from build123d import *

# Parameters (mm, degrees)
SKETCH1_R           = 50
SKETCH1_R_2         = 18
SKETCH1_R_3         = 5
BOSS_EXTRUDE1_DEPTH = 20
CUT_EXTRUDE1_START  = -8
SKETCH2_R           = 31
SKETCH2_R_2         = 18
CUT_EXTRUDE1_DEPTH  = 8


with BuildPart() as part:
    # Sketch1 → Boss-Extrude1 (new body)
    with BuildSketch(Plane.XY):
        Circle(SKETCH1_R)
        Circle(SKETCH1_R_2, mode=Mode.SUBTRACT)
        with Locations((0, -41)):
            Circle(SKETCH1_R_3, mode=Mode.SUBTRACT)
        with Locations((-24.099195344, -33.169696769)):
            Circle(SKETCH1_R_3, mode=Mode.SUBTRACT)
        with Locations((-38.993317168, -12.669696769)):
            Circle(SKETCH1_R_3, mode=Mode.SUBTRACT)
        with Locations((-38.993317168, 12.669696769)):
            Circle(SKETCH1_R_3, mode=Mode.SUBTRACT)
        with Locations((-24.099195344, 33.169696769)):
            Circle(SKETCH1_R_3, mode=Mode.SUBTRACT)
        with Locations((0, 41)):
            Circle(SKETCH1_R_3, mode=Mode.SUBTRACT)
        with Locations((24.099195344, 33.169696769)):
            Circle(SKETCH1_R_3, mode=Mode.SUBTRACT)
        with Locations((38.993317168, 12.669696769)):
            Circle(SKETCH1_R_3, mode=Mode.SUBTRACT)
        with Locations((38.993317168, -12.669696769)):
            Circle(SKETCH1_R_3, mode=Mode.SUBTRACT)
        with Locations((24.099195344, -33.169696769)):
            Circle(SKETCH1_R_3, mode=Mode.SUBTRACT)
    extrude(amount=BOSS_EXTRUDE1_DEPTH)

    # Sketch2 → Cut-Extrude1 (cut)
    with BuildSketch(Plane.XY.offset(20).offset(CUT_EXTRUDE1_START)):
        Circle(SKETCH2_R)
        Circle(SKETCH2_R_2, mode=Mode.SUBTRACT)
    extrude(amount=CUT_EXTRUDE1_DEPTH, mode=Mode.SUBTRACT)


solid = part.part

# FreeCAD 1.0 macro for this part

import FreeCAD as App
import Part
import Sketcher
from FreeCAD import Vector

doc = App.newDocument("Part")
body = doc.addObject("PartDesign::Body", "Body")

# Sketch on XY plane
sketch1 = body.newObject("Sketcher::SketchObject", "Sketch")
sketch1.AttachmentSupport = (doc.getObject("XY_Plane"), [""])
sketch1.MapMode = "FlatFace"
sketch1.addGeometry(Part.Circle(Vector(0, 0, 0), Vector(0, 0, 1), 50), False)
sketch1.addGeometry(Part.Circle(Vector(-24.099195, -33.169697, 0), Vector(0, 0, 1), 5), False)
sketch1.addGeometry(Part.Circle(Vector(-38.993317, -12.669697, 0), Vector(0, 0, 1), 5), False)
sketch1.addGeometry(Part.Circle(Vector(0, -41, 0), Vector(0, 0, 1), 5), False)
sketch1.addGeometry(Part.Circle(Vector(24.099195, -33.169697, 0), Vector(0, 0, 1), 5), False)
sketch1.addGeometry(Part.Circle(Vector(38.993317, -12.669697, 0), Vector(0, 0, 1), 5), False)
sketch1.addGeometry(Part.Circle(Vector(-38.993317, 12.669697, 0), Vector(0, 0, 1), 5), False)
sketch1.addGeometry(Part.Circle(Vector(-24.099195, 33.169697, 0), Vector(0, 0, 1), 5), False)
sketch1.addGeometry(Part.Circle(Vector(0, 0, 0), Vector(0, 0, 1), 18), False)
sketch1.addGeometry(Part.Circle(Vector(38.993317, 12.669697, 0), Vector(0, 0, 1), 5), False)
sketch1.addGeometry(Part.Circle(Vector(0, 41, 0), Vector(0, 0, 1), 5), False)
sketch1.addGeometry(Part.Circle(Vector(24.099195, 33.169697, 0), Vector(0, 0, 1), 5), False)
sketch1.addConstraint(Sketcher.Constraint("Coincident", 0, 3, -1, 1))
sketch1.addConstraint(Sketcher.Constraint("Coincident", 8, 3, -1, 1))
sketch1.addConstraint(Sketcher.Constraint("Equal", 1, 2))
sketch1.addConstraint(Sketcher.Constraint("Equal", 2, 3))
sketch1.addConstraint(Sketcher.Constraint("Equal", 3, 4))
sketch1.addConstraint(Sketcher.Constraint("Equal", 4, 5))
sketch1.addConstraint(Sketcher.Constraint("Equal", 5, 6))
sketch1.addConstraint(Sketcher.Constraint("Equal", 6, 7))
sketch1.addConstraint(Sketcher.Constraint("Equal", 7, 9))
sketch1.addConstraint(Sketcher.Constraint("Equal", 9, 10))
sketch1.addConstraint(Sketcher.Constraint("Equal", 10, 11))
sketch1.addConstraint(Sketcher.Constraint("Symmetric", 5, 3, 6, 3, -1, 1))
sketch1.addConstraint(Sketcher.Constraint("Symmetric", 4, 3, 7, 3, -1, 1))
sketch1.addConstraint(Sketcher.Constraint("Symmetric", 2, 3, 9, 3, -1, 1))
sketch1.addConstraint(Sketcher.Constraint("Symmetric", 3, 3, 10, 3, -1, 1))
sketch1.addConstraint(Sketcher.Constraint("Symmetric", 1, 3, 11, 3, -1, 1))
sketch1.addConstraint(Sketcher.Constraint("Symmetric", 1, 3, 4, 3, -2))
sketch1.addConstraint(Sketcher.Constraint("Symmetric", 2, 3, 5, 3, -2))
sketch1.addConstraint(Sketcher.Constraint("PointOnObject", 3, 3, -2))
sketch1.addConstraint(Sketcher.Constraint("Diameter", 0, 100.0))
sketch1.addConstraint(Sketcher.Constraint("Diameter", 1, 10.0))
sketch1.addConstraint(Sketcher.Constraint("Diameter", 8, 36.0))
sketch1.addConstraint(Sketcher.Constraint("DistanceY", 3, 3, -1, 1, 41.0))
sketch1.addConstraint(Sketcher.Constraint("DistanceY", 1, 3, 2, 3, 20.5))
sketch1.addConstraint(Sketcher.Constraint("DistanceX", 2, 3, 1, 3, 14.894122))
sketch1.addConstraint(Sketcher.Constraint("DistanceX", 1, 3, 4, 3, 48.198391))
sketch1.addConstraint(Sketcher.Constraint("DistanceY", 1, 3, -1, 1, 33.169697))
pad1 = body.newObject("PartDesign::Pad", "Pad")
pad1.Profile = sketch1
pad1.Length = 20

# Sketch on XY plane
sketch2 = body.newObject("Sketcher::SketchObject", "Sketch001")
sketch2.AttachmentSupport = (doc.getObject("XY_Plane"), [""])
sketch2.MapMode = "FlatFace"
sketch2.AttachmentOffset = App.Placement(Vector(0, 0, 12), App.Rotation())
sketch2.addGeometry(Part.Circle(Vector(0, 0, 0), Vector(0, 0, 1), 31), False)
sketch2.addGeometry(Part.Circle(Vector(0, 0, 0), Vector(0, 0, 1), 18), False)
sketch2.addConstraint(Sketcher.Constraint("Coincident", 0, 3, -1, 1))
sketch2.addConstraint(Sketcher.Constraint("Coincident", 1, 3, -1, 1))
sketch2.addConstraint(Sketcher.Constraint("Diameter", 0, 62.0))
sketch2.addConstraint(Sketcher.Constraint("Diameter", 1, 36.0))
pocket1 = body.newObject("PartDesign::Pocket", "Pocket")
pocket1.Profile = sketch2
pocket1.Length = 8
pocket1.Reversed = True

doc.recompute()
